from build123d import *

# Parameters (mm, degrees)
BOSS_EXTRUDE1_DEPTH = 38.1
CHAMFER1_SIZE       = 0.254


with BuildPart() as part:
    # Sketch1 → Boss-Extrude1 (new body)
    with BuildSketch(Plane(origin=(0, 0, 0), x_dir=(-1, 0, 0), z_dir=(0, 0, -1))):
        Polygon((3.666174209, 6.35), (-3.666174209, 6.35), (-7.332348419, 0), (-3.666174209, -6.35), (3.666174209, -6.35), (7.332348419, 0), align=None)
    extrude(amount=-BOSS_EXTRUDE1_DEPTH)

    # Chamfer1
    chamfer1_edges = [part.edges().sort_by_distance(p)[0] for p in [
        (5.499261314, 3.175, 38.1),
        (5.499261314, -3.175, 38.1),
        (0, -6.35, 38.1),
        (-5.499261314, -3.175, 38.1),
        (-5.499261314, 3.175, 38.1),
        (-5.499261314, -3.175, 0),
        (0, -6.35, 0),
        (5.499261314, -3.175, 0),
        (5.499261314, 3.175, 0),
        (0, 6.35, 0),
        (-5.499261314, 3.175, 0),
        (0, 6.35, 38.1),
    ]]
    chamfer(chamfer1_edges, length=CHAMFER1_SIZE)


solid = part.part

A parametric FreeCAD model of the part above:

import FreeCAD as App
import Part
import Sketcher

V = App.Vector
Q = App.Units.Quantity


def edges_at(feature, points):
    """Names of the edges that pass closest to the given points."""
    edges = feature.Shape.Edges
    near = lambda p: min(range(len(edges)), key=lambda i: edges[i].distToShape(Part.Vertex(*p))[0])
    return sorted({f"Edge{near(p) + 1}" for p in points})

doc = App.newDocument("Part")
params = doc.addObject("Spreadsheet::Sheet", "Params")
for row, (alias, value) in enumerate([
    ("pad1_length", "1.5 in"),
    ("chamfer_size", "0.01 in"),
], start=1):
    params.set(f"A{row}", alias)
    params.set(f"B{row}", "=" + value)
    params.setAlias(f"B{row}", alias)

body = doc.addObject("PartDesign::Body", "Body")

sketch1 = body.newObject("Sketcher::SketchObject", "Sketch")
sketch1.AttachmentSupport = (doc.getObject("XY_Plane"), [""])
sketch1.MapMode = "FlatFace"
sketch1.addGeometry([
    Part.LineSegment(V(-4, 6, 0), V(4, 6, 0)),
    Part.LineSegment(V(4, 6, 0), V(7, 0, 0)),
    Part.LineSegment(V(7, 0, 0), V(4, -6, 0)),
    Part.LineSegment(V(4, -6, 0), V(-4, -6, 0)),
    Part.LineSegment(V(-4, -6, 0), V(-7, 0, 0)),
    Part.LineSegment(V(-7, 0, 0), V(-4, 6, 0)),
], False)
sketch1.addConstraint([
    Sketcher.Constraint("Coincident", 0, 2, 1, 1),
    Sketcher.Constraint("Coincident", 1, 2, 2, 1),
    Sketcher.Constraint("Coincident", 2, 2, 3, 1),
    Sketcher.Constraint("Coincident", 3, 2, 4, 1),
    Sketcher.Constraint("Coincident", 4, 2, 5, 1),
    Sketcher.Constraint("Coincident", 5, 2, 0, 1),
    Sketcher.Constraint("Horizontal", 0),
    Sketcher.Constraint("Horizontal", 3),
    Sketcher.Constraint("Symmetric", 0, 2, 3, 2, -1, 1),
    Sketcher.Constraint("Symmetric", 1, 2, 4, 2, -1, 1),
    Sketcher.Constraint("PointOnObject", 1, 2, -1),
    Sketcher.Constraint("Parallel", 2, 5),
    Sketcher.Constraint("Vertical", 0, 2, 2, 2),
    Sketcher.Constraint("Angle", 1, Q("-60 deg")),
    Sketcher.Constraint("DistanceY", 2, 2, 0, 2, Q("0.5 in")),
    Sketcher.Constraint("DistanceX", 0, 1, 0, 2, Q("7.332348 mm")),
])
pad1 = body.newObject("PartDesign::Pad", "Pad")
pad1.Profile = sketch1
pad1.setExpression("Length", "Params.pad1_length")
doc.recompute()

chamfer = body.newObject("PartDesign::Chamfer", "Chamfer")
chamfer.Base = (pad1, edges_at(pad1, [
    (5.499, 3.175, 38.1),
    (5.499, -3.175, 38.1),
    (0, -6.35, 38.1),
    (-5.499, -3.175, 38.1),
    (-5.499, 3.175, 38.1),
    (-5.499, -3.175, 0),
    (0, -6.35, 0),
    (5.499, -3.175, 0),
    (5.499, 3.175, 0),
    (0, 6.35, 0),
    (-5.499, 3.175, 0),
    (0, 6.35, 38.1),
]))
chamfer.setExpression("Size", "Params.chamfer_size")

doc.recompute()
